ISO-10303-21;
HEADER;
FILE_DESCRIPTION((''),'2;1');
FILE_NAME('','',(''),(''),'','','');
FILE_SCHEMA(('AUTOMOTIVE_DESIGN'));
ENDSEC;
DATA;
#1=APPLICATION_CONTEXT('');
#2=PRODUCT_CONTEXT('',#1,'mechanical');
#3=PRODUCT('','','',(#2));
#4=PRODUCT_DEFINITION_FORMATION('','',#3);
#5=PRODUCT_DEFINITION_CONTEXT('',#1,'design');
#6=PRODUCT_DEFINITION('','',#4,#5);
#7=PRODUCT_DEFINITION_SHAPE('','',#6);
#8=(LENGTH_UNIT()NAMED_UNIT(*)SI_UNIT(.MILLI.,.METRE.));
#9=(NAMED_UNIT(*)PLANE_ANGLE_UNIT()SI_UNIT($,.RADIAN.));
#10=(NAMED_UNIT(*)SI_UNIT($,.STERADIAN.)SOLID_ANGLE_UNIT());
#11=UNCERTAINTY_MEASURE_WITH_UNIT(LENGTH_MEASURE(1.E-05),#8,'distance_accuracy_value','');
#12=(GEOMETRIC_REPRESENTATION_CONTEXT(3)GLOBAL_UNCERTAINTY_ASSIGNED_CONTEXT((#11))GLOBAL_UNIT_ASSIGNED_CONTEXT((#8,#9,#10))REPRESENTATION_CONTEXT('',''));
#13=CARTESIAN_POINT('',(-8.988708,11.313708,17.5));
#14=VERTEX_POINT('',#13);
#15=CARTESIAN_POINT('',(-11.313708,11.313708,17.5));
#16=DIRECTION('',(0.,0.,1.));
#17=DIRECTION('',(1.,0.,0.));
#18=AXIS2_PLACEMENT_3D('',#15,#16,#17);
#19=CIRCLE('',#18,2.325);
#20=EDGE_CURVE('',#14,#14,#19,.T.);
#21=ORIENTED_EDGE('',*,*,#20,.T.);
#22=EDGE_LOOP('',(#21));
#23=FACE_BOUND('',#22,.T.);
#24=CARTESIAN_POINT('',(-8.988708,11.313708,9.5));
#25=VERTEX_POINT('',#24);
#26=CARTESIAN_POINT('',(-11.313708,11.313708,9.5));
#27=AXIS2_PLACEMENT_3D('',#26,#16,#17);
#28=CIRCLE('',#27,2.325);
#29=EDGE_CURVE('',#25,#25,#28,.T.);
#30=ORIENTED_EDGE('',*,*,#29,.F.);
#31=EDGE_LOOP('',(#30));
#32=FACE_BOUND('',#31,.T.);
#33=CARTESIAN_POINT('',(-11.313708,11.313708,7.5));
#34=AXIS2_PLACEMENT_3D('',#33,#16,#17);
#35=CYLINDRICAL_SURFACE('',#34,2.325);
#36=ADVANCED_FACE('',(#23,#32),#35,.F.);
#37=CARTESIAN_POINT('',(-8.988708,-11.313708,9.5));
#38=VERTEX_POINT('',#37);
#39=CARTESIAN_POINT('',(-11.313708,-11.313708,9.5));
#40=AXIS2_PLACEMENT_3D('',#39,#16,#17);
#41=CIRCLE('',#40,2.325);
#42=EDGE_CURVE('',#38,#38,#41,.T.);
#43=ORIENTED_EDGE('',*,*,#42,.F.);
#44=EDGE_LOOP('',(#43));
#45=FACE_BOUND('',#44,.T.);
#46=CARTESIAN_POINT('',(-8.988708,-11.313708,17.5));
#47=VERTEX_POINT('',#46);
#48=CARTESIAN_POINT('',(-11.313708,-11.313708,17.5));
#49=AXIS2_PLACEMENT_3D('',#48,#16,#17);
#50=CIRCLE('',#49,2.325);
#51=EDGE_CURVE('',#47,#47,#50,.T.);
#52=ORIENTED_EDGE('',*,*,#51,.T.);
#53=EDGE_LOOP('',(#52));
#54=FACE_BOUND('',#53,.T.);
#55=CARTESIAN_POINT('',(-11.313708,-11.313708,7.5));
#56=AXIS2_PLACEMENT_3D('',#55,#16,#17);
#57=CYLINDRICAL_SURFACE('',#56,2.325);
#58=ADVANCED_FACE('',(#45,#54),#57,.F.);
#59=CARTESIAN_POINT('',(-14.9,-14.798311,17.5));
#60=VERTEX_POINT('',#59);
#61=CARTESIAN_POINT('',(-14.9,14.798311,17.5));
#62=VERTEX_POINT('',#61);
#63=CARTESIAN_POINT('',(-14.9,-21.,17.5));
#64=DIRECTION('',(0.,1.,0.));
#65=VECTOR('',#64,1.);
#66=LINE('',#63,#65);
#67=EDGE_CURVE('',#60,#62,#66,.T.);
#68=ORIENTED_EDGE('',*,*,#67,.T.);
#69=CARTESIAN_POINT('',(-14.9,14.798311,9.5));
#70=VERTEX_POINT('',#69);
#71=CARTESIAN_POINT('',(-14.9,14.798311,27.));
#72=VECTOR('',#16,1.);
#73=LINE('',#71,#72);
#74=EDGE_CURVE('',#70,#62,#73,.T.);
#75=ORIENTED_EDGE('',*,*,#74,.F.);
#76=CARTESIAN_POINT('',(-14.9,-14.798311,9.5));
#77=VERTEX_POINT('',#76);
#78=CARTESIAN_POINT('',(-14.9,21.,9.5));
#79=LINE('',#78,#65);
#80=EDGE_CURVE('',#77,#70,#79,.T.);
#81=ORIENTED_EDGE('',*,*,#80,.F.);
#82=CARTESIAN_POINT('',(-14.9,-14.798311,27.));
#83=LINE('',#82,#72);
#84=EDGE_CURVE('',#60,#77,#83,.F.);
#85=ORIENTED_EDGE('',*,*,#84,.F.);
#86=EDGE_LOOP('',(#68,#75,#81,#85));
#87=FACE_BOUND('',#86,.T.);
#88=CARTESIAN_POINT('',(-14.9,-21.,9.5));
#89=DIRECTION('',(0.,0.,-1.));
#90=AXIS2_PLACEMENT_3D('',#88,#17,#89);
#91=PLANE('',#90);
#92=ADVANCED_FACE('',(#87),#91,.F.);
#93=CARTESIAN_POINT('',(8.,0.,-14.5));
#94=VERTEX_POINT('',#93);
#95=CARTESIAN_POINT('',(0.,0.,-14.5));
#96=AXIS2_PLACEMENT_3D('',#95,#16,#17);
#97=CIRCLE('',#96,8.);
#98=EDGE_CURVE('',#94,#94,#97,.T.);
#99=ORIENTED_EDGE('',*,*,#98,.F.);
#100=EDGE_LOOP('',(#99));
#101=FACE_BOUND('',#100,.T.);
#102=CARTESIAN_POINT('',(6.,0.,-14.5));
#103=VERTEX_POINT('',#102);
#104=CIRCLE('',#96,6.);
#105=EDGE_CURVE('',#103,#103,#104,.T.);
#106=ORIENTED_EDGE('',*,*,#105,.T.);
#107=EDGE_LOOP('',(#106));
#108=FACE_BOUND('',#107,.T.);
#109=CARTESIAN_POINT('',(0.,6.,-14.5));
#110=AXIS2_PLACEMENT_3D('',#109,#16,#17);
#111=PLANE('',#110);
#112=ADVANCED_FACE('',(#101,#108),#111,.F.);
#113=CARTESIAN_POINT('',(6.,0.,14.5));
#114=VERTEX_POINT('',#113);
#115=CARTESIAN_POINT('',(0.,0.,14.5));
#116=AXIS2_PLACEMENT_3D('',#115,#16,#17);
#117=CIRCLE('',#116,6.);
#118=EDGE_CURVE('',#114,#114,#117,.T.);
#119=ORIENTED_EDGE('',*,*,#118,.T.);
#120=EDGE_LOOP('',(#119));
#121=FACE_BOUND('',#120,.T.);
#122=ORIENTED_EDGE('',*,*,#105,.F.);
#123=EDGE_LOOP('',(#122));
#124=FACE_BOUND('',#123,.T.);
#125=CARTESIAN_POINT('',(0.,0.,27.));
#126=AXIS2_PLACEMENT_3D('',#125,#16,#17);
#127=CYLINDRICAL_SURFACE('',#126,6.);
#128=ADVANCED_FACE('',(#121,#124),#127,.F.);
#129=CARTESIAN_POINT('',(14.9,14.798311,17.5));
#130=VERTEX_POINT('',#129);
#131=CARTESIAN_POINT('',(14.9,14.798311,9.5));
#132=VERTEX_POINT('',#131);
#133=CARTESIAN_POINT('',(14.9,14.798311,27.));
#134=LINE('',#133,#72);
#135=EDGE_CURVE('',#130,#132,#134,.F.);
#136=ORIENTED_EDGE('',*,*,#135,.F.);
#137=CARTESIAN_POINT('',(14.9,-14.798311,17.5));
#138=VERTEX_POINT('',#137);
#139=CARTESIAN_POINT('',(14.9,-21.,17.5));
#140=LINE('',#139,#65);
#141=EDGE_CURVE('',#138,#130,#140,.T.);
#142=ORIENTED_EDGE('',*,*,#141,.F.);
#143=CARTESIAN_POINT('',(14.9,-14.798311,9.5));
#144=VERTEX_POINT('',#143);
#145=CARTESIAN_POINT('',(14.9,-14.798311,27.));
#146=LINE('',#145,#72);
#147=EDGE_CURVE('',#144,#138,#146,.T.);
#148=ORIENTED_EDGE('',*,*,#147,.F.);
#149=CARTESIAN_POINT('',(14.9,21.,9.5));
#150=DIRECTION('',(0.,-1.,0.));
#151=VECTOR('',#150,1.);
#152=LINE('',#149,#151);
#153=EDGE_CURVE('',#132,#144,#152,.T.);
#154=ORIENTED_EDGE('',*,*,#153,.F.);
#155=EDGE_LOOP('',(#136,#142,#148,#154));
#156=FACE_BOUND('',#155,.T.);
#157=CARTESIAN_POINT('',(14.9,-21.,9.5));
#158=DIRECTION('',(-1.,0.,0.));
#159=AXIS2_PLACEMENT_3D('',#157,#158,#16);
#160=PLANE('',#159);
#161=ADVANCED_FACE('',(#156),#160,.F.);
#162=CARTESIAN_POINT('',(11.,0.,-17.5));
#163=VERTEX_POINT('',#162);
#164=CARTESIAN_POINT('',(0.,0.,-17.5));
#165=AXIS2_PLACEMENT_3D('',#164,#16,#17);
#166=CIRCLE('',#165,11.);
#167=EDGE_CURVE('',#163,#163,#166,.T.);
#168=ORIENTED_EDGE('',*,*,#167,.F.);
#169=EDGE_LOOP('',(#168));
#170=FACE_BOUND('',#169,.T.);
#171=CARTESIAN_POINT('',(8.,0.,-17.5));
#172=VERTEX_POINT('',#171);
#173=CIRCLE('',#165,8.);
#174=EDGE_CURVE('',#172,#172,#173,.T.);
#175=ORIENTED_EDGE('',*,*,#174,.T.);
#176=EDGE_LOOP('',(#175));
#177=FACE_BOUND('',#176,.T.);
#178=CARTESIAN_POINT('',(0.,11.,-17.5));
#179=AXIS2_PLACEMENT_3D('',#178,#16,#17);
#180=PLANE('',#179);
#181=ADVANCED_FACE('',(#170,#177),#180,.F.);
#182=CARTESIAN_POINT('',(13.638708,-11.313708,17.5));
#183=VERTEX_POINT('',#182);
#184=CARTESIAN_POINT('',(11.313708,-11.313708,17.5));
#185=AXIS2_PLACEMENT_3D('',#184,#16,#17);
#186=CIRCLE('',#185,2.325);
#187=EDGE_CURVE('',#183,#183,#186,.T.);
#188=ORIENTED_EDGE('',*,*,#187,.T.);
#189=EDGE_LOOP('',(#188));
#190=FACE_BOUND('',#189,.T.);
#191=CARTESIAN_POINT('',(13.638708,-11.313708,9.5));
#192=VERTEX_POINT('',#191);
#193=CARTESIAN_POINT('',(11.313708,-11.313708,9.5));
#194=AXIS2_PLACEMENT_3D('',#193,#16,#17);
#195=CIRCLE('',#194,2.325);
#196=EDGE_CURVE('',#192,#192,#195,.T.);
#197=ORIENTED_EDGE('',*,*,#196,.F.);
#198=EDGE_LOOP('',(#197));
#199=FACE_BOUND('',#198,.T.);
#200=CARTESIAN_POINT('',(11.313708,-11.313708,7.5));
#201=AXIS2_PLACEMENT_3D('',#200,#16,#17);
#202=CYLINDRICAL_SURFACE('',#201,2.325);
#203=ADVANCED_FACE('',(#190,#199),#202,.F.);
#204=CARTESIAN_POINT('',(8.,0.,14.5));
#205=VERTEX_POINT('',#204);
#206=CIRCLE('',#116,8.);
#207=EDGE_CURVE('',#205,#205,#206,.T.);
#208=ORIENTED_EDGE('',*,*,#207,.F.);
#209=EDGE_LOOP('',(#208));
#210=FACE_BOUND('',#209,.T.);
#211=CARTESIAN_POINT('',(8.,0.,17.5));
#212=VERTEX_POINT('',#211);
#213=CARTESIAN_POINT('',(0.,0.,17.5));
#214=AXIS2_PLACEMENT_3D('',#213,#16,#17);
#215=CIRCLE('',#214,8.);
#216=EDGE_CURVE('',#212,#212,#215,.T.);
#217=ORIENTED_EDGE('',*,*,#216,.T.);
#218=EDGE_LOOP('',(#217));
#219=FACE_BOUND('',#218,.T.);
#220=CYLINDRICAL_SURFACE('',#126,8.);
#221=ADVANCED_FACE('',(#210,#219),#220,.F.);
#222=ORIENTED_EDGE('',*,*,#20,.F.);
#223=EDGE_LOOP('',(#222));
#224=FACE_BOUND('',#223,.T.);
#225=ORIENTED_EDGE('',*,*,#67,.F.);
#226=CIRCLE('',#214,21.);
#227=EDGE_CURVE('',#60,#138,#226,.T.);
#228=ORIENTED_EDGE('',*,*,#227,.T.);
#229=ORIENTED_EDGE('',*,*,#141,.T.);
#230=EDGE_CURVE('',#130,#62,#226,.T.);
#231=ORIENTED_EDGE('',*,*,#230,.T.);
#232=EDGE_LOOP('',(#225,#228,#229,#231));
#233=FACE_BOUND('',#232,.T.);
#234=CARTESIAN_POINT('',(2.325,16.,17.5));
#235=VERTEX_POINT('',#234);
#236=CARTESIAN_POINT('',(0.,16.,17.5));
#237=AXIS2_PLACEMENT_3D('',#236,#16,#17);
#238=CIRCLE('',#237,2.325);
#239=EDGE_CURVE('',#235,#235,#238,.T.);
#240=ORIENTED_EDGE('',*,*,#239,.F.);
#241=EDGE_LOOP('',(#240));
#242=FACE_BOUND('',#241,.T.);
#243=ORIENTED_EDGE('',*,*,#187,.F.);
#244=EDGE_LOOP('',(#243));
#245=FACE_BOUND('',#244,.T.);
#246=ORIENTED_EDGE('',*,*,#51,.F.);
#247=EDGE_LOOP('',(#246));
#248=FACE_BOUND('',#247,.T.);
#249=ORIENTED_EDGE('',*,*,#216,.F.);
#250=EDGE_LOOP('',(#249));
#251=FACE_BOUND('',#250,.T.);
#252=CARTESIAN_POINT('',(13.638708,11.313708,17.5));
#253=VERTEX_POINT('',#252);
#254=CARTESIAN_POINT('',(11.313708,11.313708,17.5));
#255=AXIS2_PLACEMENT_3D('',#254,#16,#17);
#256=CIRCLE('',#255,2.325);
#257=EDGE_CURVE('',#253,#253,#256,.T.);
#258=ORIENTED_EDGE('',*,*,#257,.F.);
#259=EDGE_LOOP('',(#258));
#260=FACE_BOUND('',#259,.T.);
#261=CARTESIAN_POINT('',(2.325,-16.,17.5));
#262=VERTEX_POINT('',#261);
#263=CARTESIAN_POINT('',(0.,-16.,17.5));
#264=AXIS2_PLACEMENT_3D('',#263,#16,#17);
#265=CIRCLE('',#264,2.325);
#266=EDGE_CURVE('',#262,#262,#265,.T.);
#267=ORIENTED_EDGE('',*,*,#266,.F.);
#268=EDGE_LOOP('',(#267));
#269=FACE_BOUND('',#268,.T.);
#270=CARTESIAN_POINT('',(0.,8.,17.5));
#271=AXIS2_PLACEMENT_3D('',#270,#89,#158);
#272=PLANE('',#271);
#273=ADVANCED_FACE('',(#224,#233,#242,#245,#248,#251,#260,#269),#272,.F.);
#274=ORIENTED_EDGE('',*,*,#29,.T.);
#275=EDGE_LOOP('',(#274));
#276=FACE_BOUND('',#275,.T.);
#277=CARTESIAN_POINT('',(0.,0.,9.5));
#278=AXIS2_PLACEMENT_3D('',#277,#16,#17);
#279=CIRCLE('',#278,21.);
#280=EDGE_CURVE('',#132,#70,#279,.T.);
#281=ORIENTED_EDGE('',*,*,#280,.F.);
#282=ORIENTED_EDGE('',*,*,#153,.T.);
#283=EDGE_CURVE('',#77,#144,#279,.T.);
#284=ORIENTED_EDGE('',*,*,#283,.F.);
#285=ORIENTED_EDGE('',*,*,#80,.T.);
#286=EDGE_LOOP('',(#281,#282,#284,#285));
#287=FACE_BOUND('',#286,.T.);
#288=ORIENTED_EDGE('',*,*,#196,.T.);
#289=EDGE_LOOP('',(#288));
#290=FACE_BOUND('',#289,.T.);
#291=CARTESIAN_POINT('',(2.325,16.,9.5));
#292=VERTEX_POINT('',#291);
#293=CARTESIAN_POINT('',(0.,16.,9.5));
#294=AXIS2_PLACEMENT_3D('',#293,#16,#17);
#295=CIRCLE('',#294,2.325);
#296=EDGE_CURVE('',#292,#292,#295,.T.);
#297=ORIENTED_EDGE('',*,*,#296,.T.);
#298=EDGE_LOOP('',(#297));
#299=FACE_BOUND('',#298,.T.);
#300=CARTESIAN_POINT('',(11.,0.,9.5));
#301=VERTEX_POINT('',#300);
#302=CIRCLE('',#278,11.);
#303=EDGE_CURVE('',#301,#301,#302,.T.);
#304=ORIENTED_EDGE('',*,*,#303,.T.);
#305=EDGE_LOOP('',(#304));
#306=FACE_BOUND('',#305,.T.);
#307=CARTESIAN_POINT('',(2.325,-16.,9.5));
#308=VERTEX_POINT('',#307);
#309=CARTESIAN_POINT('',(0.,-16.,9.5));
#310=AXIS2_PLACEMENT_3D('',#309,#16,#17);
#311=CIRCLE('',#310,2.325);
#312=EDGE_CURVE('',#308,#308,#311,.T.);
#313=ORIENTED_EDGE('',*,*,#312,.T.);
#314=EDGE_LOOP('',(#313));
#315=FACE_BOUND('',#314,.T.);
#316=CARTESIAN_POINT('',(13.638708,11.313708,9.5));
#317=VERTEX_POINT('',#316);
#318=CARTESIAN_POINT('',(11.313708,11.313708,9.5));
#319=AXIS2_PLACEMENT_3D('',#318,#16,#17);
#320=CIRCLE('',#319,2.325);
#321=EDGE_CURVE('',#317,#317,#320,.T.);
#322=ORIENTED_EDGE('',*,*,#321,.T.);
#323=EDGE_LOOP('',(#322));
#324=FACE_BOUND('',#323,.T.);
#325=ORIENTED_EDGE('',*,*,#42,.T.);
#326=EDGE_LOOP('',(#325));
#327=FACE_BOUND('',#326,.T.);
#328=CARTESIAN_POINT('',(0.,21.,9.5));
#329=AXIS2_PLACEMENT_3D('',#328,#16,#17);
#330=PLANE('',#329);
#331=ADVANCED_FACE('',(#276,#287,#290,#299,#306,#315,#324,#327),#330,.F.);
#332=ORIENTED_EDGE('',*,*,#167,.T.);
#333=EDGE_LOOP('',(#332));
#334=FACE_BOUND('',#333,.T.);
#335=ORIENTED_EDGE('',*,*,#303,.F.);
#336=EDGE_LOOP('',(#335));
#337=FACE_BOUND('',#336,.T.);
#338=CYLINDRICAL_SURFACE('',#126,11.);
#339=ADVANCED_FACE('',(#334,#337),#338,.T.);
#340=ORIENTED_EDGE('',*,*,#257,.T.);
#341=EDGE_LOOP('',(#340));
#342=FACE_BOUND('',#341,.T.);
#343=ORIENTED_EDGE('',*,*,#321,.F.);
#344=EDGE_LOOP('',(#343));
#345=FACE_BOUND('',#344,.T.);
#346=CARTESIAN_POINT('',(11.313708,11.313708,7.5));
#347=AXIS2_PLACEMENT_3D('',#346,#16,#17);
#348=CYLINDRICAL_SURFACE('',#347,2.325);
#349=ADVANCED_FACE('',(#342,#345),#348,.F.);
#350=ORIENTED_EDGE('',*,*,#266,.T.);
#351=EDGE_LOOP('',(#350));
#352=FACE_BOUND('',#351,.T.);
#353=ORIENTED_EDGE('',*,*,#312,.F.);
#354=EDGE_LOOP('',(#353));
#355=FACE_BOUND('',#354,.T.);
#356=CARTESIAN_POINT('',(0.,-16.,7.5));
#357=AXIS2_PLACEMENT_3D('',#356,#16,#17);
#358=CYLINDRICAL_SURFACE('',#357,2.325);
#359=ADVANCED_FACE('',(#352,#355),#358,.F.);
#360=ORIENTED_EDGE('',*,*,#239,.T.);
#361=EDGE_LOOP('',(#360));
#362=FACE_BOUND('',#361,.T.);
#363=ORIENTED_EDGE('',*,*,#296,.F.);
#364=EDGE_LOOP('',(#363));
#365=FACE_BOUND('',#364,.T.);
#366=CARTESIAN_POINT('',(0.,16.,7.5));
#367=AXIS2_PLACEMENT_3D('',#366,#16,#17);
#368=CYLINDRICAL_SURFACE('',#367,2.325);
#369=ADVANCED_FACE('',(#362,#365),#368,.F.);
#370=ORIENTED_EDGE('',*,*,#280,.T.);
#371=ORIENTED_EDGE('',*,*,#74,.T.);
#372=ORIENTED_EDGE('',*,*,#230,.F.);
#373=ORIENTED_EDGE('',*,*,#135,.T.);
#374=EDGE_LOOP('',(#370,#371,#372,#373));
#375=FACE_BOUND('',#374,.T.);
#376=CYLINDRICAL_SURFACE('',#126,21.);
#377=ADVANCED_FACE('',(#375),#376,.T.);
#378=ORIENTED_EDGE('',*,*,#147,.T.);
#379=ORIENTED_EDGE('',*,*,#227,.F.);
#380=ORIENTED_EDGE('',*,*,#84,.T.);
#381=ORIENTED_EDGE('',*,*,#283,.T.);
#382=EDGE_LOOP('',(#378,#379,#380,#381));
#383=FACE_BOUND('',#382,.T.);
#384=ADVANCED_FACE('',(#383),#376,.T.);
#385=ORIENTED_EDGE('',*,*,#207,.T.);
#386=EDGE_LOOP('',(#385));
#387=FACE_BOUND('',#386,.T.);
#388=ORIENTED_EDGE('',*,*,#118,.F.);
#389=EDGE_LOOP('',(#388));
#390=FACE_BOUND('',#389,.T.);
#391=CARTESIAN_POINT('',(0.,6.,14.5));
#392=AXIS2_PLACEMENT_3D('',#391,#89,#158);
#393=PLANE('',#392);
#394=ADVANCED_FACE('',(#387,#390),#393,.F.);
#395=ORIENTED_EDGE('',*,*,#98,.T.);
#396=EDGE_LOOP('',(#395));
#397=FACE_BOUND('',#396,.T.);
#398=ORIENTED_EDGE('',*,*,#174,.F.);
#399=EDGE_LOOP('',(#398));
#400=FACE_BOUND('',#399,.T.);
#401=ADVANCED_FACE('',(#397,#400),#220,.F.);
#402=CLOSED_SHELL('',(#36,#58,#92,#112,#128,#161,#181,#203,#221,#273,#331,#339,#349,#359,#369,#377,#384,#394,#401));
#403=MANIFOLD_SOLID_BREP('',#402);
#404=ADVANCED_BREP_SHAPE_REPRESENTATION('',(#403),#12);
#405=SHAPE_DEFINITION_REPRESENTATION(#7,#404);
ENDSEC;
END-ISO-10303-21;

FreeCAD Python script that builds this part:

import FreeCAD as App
import Part
import Sketcher

V = App.Vector


def add_polygon(sketch, points):
    """Adds a closed chain of lines whose ends are joined by coincident constraints."""
    first, n = sketch.GeometryCount, len(points)
    for a, b in zip(points, points[1:] + points[:1]):
        sketch.addGeometry(Part.LineSegment(App.Vector(*a, 0), App.Vector(*b, 0)), False)
    for i in range(n):
        sketch.addConstraint(Sketcher.Constraint("Coincident", first + i, 2, first + (i + 1) % n, 1))

doc = App.newDocument("Part")
params = doc.addObject("Spreadsheet::Sheet", "Params")
for row, (alias, value) in enumerate([
    ("sketch1_width", "2 mm"),
    ("sketch1_width2", "3 mm"),
    ("sketch1_width3", "10 mm"),
    ("sketch1_height", "29 mm"),
    ("sketch1_height2", "27 mm"),
    ("revolution_angle", "360 deg"),
    ("sketch2_height", "8 mm"),
    ("sketch2_width", "6.1 mm"),
    ("sketch3_diameter", "4.65 mm"),
    ("pocket2_length", "10 mm"),
], start=1):
    params.set(f"A{row}", alias)
    params.set(f"B{row}", "=" + value)
    params.setAlias(f"B{row}", alias)

body = doc.addObject("PartDesign::Body", "Body")

sketch1 = body.newObject("Sketcher::SketchObject", "Sketch")
sketch1.AttachmentSupport = (doc.getObject("YZ_Plane"), [""])
sketch1.MapMode = "FlatFace"
add_polygon(sketch1, [(6, 14.5), (6, -14.5), (8, -14.5), (8, -17.5), (11, -17.5), (11, 9.5), (21, 9.5), (21, 17.5), (8, 17.5), (8, 14.5)])
sketch1.addConstraint([
    Sketcher.Constraint("Vertical", 0),
    Sketcher.Constraint("Horizontal", 1),
    Sketcher.Constraint("Vertical", 2),
    Sketcher.Constraint("Horizontal", 3),
    Sketcher.Constraint("Vertical", 4),
    Sketcher.Constraint("Horizontal", 5),
    Sketcher.Constraint("Vertical", 6),
    Sketcher.Constraint("Horizontal", 7),
    Sketcher.Constraint("Vertical", 8),
    Sketcher.Constraint("Horizontal", 9),
    Sketcher.Constraint("Symmetric", 2, 2, 7, 2, -1),
    Sketcher.Constraint("Equal", 3, 2),
    Sketcher.Constraint("Equal", 2, 8),
    Sketcher.Constraint("DistanceX", 1, 1, 1, 2, 2.0),
    Sketcher.Constraint("DistanceX", 3, 1, 3, 2, 3.0),
    Sketcher.Constraint("DistanceX", 5, 1, 5, 2, 10.0),
    Sketcher.Constraint("DistanceY", 0, 2, 0, 1, 29.0),
    Sketcher.Constraint("DistanceY", 4, 1, 4, 2, 27.0),
    Sketcher.Constraint("DistanceX", -1, 1, 0, 2, 6.0),
])
sketch1.setExpression("Constraints[23]", "Params.sketch1_width")
sketch1.setExpression("Constraints[24]", "Params.sketch1_width2")
sketch1.setExpression("Constraints[25]", "Params.sketch1_width3")
sketch1.setExpression("Constraints[26]", "Params.sketch1_height")
sketch1.setExpression("Constraints[27]", "Params.sketch1_height2")
revolution = body.newObject("PartDesign::Revolution", "Revolution")
revolution.Profile = sketch1
revolution.ReferenceAxis = (sketch1, ["V_Axis"])
revolution.setExpression("Angle", "Params.revolution_angle")

sketch2 = body.newObject("Sketcher::SketchObject", "Sketch001")
sketch2.AttachmentSupport = (doc.getObject("XZ_Plane"), [""])
sketch2.MapMode = "FlatFace"
add_polygon(sketch2, [(-21, 9.5), (-21, 17.5), (-14.9, 17.5), (-14.9, 9.5)])
add_polygon(sketch2, [(14.9, 9.5), (14.9, 17.5), (21, 17.5), (21, 9.5)])
sketch2.addConstraint([
    Sketcher.Constraint("Vertical", 0),
    Sketcher.Constraint("Horizontal", 1),
    Sketcher.Constraint("Vertical", 2),
    Sketcher.Constraint("Horizontal", 3),
    Sketcher.Constraint("Vertical", 4),
    Sketcher.Constraint("Horizontal", 5),
    Sketcher.Constraint("Vertical", 6),
    Sketcher.Constraint("Horizontal", 7),
    Sketcher.Constraint("Symmetric", 1, 2, 4, 2, -2),
    Sketcher.Constraint("Symmetric", 3, 2, 6, 2, -2),
    Sketcher.Constraint("DistanceY", 0, 1, 0, 2, 8.0),
    Sketcher.Constraint("DistanceX", 1, 1, 1, 2, 6.1),
    Sketcher.Constraint("DistanceX", 0, 2, -1, 1, 21.0),
    Sketcher.Constraint("DistanceY", -1, 1, 0, 2, 17.5),
])
sketch2.setExpression("Constraints[18]", "Params.sketch2_height")
sketch2.setExpression("Constraints[19]", "Params.sketch2_width")
pocket1 = body.newObject("PartDesign::Pocket", "Pocket")
pocket1.Profile = sketch2
pocket1.Type = "ThroughAll"
pocket1.Midplane = True

sketch3 = body.newObject("Sketcher::SketchObject", "Sketch002")
sketch3.AttachmentSupport = (doc.getObject("XY_Plane"), [""])
sketch3.MapMode = "FlatFace"
sketch3.AttachmentOffset = App.Placement(V(0, 0, 17.5), App.Rotation())
sketch3.addGeometry([
    Part.Circle(V(0, 16, 0), V(0, 0, 1), 2.325),
    Part.Circle(V(11.313708, 11.313708, 0), V(0, 0, 1), 2.325),
    Part.Circle(V(11.313708, -11.313708, 0), V(0, 0, 1), 2.325),
    Part.Circle(V(0, -16, 0), V(0, 0, 1), 2.325),
    Part.Circle(V(-11.313708, -11.313708, 0), V(0, 0, 1), 2.325),
    Part.Circle(V(-11.313708, 11.313708, 0), V(0, 0, 1), 2.325),
], False)
sketch3.addConstraint([
    Sketcher.Constraint("Equal", 0, 1),
    Sketcher.Constraint("Equal", 1, 2),
    Sketcher.Constraint("Equal", 2, 3),
    Sketcher.Constraint("Equal", 3, 4),
    Sketcher.Constraint("Equal", 4, 5),
    Sketcher.Constraint("Symmetric", 0, 3, 3, 3, -1, 1),
    Sketcher.Constraint("Symmetric", 1, 3, 4, 3, -1, 1),
    Sketcher.Constraint("Symmetric", 2, 3, 5, 3, -1, 1),
    Sketcher.Constraint("Symmetric", 2, 3, 4, 3, -2),
    Sketcher.Constraint("PointOnObject", 0, 3, -2),
    Sketcher.Constraint("Diameter", 0, 4.65),
    Sketcher.Constraint("DistanceY", -1, 1, 0, 3, 16.0),
    Sketcher.Constraint("DistanceX", -1, 1, 1, 3, 11.313708),
    Sketcher.Constraint("DistanceY", -1, 1, 1, 3, 11.313708),
])
sketch3.setExpression("Constraints[10]", "Params.sketch3_diameter")
pocket2 = body.newObject("PartDesign::Pocket", "Pocket001")
pocket2.Profile = sketch3
pocket2.setExpression("Length", "Params.pocket2_length")

doc.recompute()
